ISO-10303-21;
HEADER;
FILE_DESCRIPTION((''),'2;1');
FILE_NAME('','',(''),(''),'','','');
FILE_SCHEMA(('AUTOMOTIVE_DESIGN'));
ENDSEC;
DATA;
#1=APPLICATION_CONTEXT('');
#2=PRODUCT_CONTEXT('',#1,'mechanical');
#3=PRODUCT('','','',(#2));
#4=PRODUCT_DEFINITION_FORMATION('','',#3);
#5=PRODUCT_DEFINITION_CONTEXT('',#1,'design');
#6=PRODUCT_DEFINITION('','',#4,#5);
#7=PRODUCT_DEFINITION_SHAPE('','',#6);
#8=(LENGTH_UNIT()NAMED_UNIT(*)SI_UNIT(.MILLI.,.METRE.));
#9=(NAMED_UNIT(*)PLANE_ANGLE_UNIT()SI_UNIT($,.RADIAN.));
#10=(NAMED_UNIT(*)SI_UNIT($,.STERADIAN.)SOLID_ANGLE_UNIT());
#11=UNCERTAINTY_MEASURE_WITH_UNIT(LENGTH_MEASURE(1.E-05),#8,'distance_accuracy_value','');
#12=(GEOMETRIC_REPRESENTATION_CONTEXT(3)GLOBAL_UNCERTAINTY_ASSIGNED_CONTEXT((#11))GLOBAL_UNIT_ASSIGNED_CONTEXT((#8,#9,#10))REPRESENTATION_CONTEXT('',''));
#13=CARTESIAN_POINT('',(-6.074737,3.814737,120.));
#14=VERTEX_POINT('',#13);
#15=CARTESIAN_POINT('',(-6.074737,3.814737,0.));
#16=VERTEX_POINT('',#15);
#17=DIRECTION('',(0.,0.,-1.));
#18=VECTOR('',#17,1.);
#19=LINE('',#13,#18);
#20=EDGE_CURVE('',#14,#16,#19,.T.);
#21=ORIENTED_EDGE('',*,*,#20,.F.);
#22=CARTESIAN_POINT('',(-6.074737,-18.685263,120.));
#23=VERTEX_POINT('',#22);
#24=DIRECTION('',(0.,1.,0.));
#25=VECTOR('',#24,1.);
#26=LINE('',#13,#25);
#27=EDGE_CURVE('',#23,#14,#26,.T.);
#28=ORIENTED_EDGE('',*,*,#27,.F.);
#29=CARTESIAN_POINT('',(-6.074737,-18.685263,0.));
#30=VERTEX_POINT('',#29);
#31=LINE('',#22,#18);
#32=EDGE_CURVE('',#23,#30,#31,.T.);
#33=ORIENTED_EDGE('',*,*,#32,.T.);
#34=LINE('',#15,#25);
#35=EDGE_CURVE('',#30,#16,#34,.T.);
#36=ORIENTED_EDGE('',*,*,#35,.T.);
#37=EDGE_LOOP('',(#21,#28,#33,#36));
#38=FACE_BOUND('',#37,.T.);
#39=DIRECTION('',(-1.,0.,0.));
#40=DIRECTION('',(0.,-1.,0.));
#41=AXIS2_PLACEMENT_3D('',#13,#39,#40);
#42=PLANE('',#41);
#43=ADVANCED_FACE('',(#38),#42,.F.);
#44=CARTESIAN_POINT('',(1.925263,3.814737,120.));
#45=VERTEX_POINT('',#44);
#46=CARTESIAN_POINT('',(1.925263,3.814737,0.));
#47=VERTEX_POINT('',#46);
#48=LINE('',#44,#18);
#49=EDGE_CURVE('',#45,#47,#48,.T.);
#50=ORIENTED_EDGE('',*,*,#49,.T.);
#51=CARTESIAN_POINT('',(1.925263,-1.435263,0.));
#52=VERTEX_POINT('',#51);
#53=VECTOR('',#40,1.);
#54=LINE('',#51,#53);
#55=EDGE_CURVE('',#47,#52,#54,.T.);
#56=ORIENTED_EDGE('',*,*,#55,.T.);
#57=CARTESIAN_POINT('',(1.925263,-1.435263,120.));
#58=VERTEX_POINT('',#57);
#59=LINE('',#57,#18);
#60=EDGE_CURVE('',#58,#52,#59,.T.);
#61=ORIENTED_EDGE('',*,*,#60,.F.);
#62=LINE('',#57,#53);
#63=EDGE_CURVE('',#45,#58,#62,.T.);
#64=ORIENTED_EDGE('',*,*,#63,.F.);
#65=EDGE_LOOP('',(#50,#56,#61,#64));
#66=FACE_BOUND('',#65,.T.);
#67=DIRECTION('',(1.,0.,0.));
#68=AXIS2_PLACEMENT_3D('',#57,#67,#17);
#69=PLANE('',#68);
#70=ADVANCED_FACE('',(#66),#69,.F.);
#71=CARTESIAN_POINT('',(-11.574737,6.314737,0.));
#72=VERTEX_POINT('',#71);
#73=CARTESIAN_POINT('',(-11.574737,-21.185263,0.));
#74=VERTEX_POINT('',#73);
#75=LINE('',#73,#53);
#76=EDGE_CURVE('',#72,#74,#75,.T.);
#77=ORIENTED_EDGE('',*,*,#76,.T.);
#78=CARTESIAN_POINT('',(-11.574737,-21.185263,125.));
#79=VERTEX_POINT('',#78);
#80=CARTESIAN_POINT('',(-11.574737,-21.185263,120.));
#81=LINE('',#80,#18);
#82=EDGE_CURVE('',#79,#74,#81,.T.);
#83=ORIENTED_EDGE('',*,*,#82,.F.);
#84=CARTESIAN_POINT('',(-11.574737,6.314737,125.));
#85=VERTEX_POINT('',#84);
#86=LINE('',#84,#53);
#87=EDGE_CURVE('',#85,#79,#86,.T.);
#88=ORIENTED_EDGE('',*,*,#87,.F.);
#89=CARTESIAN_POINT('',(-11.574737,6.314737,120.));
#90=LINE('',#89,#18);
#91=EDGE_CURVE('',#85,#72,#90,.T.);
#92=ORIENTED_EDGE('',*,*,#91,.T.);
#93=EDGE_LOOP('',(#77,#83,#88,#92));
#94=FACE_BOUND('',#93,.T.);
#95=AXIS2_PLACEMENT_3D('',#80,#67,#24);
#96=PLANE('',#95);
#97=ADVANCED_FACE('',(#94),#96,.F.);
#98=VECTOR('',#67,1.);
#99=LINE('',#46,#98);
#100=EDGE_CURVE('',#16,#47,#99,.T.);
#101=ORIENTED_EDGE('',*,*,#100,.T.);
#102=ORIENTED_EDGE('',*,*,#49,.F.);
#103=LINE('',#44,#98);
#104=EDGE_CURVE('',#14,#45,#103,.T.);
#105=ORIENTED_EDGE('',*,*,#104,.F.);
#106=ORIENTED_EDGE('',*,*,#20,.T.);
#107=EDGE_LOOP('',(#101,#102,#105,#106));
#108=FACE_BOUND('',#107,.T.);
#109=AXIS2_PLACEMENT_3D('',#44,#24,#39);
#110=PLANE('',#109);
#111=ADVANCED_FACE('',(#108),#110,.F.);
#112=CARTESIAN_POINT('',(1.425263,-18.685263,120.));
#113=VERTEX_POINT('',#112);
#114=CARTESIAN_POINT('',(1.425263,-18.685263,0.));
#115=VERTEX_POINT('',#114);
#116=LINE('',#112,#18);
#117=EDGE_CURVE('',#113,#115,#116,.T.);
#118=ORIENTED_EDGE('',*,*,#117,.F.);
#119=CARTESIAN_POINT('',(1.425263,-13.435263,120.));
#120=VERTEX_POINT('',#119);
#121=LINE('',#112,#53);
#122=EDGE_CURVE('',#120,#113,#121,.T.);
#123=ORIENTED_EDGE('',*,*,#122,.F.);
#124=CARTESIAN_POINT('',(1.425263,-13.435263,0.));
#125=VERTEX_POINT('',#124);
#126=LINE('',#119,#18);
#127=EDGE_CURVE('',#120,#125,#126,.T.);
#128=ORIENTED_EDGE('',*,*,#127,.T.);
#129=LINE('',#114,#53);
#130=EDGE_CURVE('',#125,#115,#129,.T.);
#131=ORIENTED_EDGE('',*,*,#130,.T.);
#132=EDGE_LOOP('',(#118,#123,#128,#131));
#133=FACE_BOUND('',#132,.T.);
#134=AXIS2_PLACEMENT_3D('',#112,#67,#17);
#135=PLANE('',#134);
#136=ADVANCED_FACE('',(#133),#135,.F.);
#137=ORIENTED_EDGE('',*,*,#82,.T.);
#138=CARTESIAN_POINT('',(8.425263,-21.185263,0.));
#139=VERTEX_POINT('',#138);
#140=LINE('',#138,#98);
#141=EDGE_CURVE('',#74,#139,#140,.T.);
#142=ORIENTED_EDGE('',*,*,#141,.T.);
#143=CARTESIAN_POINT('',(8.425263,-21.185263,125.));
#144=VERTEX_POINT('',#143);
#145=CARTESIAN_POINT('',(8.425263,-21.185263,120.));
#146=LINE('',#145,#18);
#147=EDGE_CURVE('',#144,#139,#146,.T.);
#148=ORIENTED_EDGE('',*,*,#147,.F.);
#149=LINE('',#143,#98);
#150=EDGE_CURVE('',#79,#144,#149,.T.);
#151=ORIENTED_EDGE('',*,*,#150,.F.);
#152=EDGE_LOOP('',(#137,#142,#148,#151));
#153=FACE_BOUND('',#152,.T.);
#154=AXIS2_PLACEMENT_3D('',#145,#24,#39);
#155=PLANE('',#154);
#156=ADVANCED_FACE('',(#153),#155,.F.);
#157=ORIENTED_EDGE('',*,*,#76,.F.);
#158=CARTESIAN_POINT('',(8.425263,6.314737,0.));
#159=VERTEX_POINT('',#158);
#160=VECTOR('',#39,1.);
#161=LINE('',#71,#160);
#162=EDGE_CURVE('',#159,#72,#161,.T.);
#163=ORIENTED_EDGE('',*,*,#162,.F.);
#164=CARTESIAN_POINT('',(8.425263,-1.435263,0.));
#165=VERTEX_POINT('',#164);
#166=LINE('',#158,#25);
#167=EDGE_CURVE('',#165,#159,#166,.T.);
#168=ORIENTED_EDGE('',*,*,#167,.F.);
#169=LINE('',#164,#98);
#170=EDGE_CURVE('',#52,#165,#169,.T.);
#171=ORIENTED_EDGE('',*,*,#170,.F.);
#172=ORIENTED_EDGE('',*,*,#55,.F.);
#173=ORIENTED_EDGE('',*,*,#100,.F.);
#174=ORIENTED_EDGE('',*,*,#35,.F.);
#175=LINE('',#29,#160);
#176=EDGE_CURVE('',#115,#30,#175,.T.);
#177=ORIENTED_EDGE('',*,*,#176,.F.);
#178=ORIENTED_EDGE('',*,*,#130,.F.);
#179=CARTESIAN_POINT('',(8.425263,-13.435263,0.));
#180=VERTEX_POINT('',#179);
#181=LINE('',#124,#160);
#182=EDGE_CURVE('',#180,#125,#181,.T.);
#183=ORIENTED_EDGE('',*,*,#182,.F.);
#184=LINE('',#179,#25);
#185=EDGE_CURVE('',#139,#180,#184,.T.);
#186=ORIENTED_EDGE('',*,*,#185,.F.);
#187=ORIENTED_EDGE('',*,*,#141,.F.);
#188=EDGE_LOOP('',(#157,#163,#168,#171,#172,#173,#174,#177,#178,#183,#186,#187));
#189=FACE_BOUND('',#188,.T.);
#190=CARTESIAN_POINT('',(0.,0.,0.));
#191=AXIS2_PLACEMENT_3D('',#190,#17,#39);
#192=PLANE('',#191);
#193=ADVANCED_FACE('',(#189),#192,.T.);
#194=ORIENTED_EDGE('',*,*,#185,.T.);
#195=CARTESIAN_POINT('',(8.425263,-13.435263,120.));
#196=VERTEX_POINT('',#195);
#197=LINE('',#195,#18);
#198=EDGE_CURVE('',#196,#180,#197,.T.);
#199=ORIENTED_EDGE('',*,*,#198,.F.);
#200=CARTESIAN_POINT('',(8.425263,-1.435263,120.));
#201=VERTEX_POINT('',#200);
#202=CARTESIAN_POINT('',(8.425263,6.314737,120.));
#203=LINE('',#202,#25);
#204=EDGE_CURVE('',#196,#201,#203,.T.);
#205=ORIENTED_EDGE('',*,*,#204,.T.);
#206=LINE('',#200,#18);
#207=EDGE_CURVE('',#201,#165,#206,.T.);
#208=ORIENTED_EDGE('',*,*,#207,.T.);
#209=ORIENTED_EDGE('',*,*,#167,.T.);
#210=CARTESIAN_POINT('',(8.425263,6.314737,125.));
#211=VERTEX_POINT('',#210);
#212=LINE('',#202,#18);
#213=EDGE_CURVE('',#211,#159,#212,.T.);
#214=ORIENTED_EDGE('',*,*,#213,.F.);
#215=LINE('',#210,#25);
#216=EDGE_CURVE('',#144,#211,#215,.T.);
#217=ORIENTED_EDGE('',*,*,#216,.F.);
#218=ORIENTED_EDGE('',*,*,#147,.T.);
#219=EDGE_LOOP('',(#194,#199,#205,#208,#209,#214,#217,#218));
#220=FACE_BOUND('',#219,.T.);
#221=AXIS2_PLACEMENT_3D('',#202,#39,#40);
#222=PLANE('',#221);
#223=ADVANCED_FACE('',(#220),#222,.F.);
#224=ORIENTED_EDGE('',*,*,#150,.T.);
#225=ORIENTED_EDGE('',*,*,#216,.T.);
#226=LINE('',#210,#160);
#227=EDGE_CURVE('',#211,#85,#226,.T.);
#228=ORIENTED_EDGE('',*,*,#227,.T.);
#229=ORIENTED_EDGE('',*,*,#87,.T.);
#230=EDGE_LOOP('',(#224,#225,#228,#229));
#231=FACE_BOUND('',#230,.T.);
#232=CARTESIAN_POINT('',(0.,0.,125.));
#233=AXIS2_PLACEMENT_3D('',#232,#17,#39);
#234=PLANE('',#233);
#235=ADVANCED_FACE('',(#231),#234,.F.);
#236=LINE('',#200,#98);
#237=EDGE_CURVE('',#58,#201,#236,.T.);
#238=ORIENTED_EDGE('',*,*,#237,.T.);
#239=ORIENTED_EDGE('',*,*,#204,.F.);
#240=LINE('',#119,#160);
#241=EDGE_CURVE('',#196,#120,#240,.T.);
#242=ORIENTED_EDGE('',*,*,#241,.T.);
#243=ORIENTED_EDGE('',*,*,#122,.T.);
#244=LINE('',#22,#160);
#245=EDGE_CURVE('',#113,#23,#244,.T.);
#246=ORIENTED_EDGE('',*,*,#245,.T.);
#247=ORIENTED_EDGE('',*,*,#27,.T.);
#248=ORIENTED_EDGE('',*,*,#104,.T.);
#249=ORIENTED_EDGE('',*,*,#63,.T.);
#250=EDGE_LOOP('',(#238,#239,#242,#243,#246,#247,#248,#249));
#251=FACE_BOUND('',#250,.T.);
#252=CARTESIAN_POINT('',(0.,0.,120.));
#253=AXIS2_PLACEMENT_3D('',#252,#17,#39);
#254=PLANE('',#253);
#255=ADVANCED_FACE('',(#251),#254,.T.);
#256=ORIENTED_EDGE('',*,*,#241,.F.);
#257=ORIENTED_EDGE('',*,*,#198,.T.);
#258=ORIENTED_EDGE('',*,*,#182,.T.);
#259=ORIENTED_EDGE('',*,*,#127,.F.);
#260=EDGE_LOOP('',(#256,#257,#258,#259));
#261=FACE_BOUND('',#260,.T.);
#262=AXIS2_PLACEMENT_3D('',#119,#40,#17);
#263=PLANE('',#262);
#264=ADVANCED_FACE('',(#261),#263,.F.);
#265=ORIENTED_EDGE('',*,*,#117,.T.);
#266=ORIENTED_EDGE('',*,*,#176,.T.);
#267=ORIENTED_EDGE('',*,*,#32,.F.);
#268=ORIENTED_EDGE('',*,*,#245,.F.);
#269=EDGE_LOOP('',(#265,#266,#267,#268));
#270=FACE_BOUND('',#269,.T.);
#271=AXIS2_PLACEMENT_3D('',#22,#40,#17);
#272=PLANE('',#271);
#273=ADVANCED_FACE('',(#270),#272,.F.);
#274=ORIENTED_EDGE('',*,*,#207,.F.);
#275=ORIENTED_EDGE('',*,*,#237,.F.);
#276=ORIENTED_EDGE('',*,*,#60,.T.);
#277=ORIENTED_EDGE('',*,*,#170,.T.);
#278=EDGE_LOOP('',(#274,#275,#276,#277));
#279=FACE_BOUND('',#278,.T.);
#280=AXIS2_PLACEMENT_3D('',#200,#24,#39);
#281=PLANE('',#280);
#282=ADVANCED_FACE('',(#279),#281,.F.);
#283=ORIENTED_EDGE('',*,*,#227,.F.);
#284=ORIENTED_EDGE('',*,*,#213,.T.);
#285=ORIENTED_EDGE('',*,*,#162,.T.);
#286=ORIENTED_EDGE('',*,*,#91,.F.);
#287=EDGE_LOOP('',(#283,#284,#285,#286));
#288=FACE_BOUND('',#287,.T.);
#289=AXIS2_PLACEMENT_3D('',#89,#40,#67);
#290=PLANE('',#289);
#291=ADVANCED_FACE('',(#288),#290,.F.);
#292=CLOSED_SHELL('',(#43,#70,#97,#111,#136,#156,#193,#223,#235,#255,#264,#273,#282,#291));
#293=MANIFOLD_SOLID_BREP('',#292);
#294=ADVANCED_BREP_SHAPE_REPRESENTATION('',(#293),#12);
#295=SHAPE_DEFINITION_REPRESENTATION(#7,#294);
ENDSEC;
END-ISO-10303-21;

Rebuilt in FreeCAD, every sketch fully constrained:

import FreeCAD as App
import Part
import Sketcher
Q = App.Units.Quantity

doc = App.newDocument("Part")
params = doc.addObject("Spreadsheet::Sheet", "Params")
for row, (alias, value) in enumerate([
    ("sketch1_width", "20 mm"),
    ("sketch1_width2", "7 mm"),
    ("sketch1_width3", "8 mm"),
    ("sketch1_width4", "7.5 mm"),
    ("sketch1_height", "27.5 mm"),
    ("pad1_length", "120 mm"),
    ("sketch2_width", "20 mm"),
    ("sketch2_height", "27.5 mm"),
    ("pad2_length", "5 mm"),
], start=1):
    params.set(f"A{row}", alias)
    params.set(f"B{row}", "=" + value)
    params.setAlias(f"B{row}", alias)

body = doc.addObject("PartDesign::Body", "Body")

# Sketch on XY plane
sketch1 = body.newObject("Sketcher::SketchObject", "Sketch")
sketch1.AttachmentSupport = (doc.getObject("XY_Plane"), [""])
sketch1.MapMode = "FlatFace"
sketch1.addGeometry(Part.LineSegment(App.Vector(8.425263, 6.314737, 0), App.Vector(-11.574737, 6.314737, 0)), False)
sketch1.addGeometry(Part.LineSegment(App.Vector(-11.574737, 6.314737, 0), App.Vector(-11.574737, -21.185263, 0)), False)
sketch1.addGeometry(Part.LineSegment(App.Vector(-11.574737, -21.185263, 0), App.Vector(8.425263, -21.185263, 0)), False)
sketch1.addGeometry(Part.LineSegment(App.Vector(8.425263, -21.185263, 0), App.Vector(8.425263, -13.435263, 0)), False)
sketch1.addGeometry(Part.LineSegment(App.Vector(8.425263, -13.435263, 0), App.Vector(1.425263, -13.435263, 0)), False)
sketch1.addGeometry(Part.LineSegment(App.Vector(1.425263, -13.435263, 0), App.Vector(1.425263, -18.685263, 0)), False)
sketch1.addGeometry(Part.LineSegment(App.Vector(1.425263, -18.685263, 0), App.Vector(-6.074737, -18.685263, 0)), False)
sketch1.addGeometry(Part.LineSegment(App.Vector(-6.074737, -18.685263, 0), App.Vector(-6.074737, 3.814737, 0)), False)
sketch1.addGeometry(Part.LineSegment(App.Vector(-6.074737, 3.814737, 0), App.Vector(1.925263, 3.814737, 0)), False)
sketch1.addGeometry(Part.LineSegment(App.Vector(1.925263, 3.814737, 0), App.Vector(1.925263, -1.435263, 0)), False)
sketch1.addGeometry(Part.LineSegment(App.Vector(1.925263, -1.435263, 0), App.Vector(8.425263, -1.435263, 0)), False)
sketch1.addGeometry(Part.LineSegment(App.Vector(8.425263, -1.435263, 0), App.Vector(8.425263, 6.314737, 0)), False)
sketch1.addConstraint(Sketcher.Constraint("Coincident", 0, 2, 1, 1))
sketch1.addConstraint(Sketcher.Constraint("Coincident", 1, 2, 2, 1))
sketch1.addConstraint(Sketcher.Constraint("Coincident", 2, 2, 3, 1))
sketch1.addConstraint(Sketcher.Constraint("Coincident", 3, 2, 4, 1))
sketch1.addConstraint(Sketcher.Constraint("Coincident", 4, 2, 5, 1))
sketch1.addConstraint(Sketcher.Constraint("Coincident", 5, 2, 6, 1))
sketch1.addConstraint(Sketcher.Constraint("Coincident", 6, 2, 7, 1))
sketch1.addConstraint(Sketcher.Constraint("Coincident", 7, 2, 8, 1))
sketch1.addConstraint(Sketcher.Constraint("Coincident", 8, 2, 9, 1))
sketch1.addConstraint(Sketcher.Constraint("Coincident", 9, 2, 10, 1))
sketch1.addConstraint(Sketcher.Constraint("Coincident", 10, 2, 11, 1))
sketch1.addConstraint(Sketcher.Constraint("Coincident", 11, 2, 0, 1))
sketch1.addConstraint(Sketcher.Constraint("Horizontal", 0))
sketch1.addConstraint(Sketcher.Constraint("Vertical", 1))
sketch1.addConstraint(Sketcher.Constraint("Horizontal", 2))
sketch1.addConstraint(Sketcher.Constraint("Vertical", 3))
sketch1.addConstraint(Sketcher.Constraint("Horizontal", 4))
sketch1.addConstraint(Sketcher.Constraint("Vertical", 5))
sketch1.addConstraint(Sketcher.Constraint("Horizontal", 6))
sketch1.addConstraint(Sketcher.Constraint("Vertical", 7))
sketch1.addConstraint(Sketcher.Constraint("Horizontal", 8))
sketch1.addConstraint(Sketcher.Constraint("Vertical", 9))
sketch1.addConstraint(Sketcher.Constraint("Horizontal", 10))
sketch1.addConstraint(Sketcher.Constraint("Vertical", 11))
sketch1.addConstraint(Sketcher.Constraint("Vertical", 3, 2, 10, 2))
sketch1.addConstraint(Sketcher.Constraint("Equal", 5, 9))
sketch1.addConstraint(Sketcher.Constraint("Equal", 3, 11))
sketch1.addConstraint(Sketcher.Constraint("DistanceX", 0, 2, 0, 1, Q("20 mm")))
sketch1.addConstraint(Sketcher.Constraint("DistanceX", 4, 2, 4, 1, Q("7 mm")))
sketch1.addConstraint(Sketcher.Constraint("DistanceX", 8, 1, 8, 2, Q("8 mm")))
sketch1.addConstraint(Sketcher.Constraint("DistanceX", 6, 2, 6, 1, Q("7.5 mm")))
sketch1.addConstraint(Sketcher.Constraint("DistanceY", 1, 2, 1, 1, Q("27.5 mm")))
sketch1.addConstraint(Sketcher.Constraint("DistanceY", 7, 1, 7, 2, Q("22.5 mm")))
sketch1.addConstraint(Sketcher.Constraint("DistanceY", 4, 2, 9, 2, Q("12 mm")))
sketch1.addConstraint(Sketcher.Constraint("DistanceX", 0, 2, -1, 1, Q("11.574737 mm")))
sketch1.addConstraint(Sketcher.Constraint("DistanceY", -1, 1, 0, 2, Q("6.314737 mm")))
sketch1.setExpression("Constraints[27]", "Params.sketch1_width")
sketch1.setExpression("Constraints[28]", "Params.sketch1_width2")
sketch1.setExpression("Constraints[29]", "Params.sketch1_width3")
sketch1.setExpression("Constraints[30]", "Params.sketch1_width4")
sketch1.setExpression("Constraints[31]", "Params.sketch1_height")
pad1 = body.newObject("PartDesign::Pad", "Pad")
pad1.Profile = sketch1
pad1.setExpression("Length", "Params.pad1_length")

# Sketch on XY plane
sketch2 = body.newObject("Sketcher::SketchObject", "Sketch001")
sketch2.AttachmentSupport = (doc.getObject("XY_Plane"), [""])
sketch2.MapMode = "FlatFace"
sketch2.AttachmentOffset = App.Placement(App.Vector(0, 0, 120), App.Rotation())
sketch2.addGeometry(Part.LineSegment(App.Vector(-11.574737, 6.314737, 0), App.Vector(-11.574737, -21.185263, 0)), False)
sketch2.addGeometry(Part.LineSegment(App.Vector(-11.574737, -21.185263, 0), App.Vector(8.425263, -21.185263, 0)), False)
sketch2.addGeometry(Part.LineSegment(App.Vector(8.425263, -21.185263, 0), App.Vector(8.425263, 6.314737, 0)), False)
sketch2.addGeometry(Part.LineSegment(App.Vector(8.425263, 6.314737, 0), App.Vector(-11.574737, 6.314737, 0)), False)
sketch2.addConstraint(Sketcher.Constraint("Coincident", 0, 2, 1, 1))
sketch2.addConstraint(Sketcher.Constraint("Coincident", 1, 2, 2, 1))
sketch2.addConstraint(Sketcher.Constraint("Coincident", 2, 2, 3, 1))
sketch2.addConstraint(Sketcher.Constraint("Coincident", 3, 2, 0, 1))
sketch2.addConstraint(Sketcher.Constraint("Vertical", 0))
sketch2.addConstraint(Sketcher.Constraint("Horizontal", 1))
sketch2.addConstraint(Sketcher.Constraint("Vertical", 2))
sketch2.addConstraint(Sketcher.Constraint("Horizontal", 3))
sketch2.addConstraint(Sketcher.Constraint("DistanceX", 1, 1, 1, 2, Q("20 mm")))
sketch2.addConstraint(Sketcher.Constraint("DistanceY", 0, 2, 0, 1, Q("27.5 mm")))
sketch2.addConstraint(Sketcher.Constraint("DistanceX", 0, 2, -1, 1, Q("11.574737 mm")))
sketch2.addConstraint(Sketcher.Constraint("DistanceY", 0, 2, -1, 1, Q("21.185263 mm")))
sketch2.setExpression("Constraints[8]", "Params.sketch2_width")
sketch2.setExpression("Constraints[9]", "Params.sketch2_height")
pad2 = body.newObject("PartDesign::Pad", "Pad001")
pad2.Profile = sketch2
pad2.setExpression("Length", "Params.pad2_length")

doc.recompute()
